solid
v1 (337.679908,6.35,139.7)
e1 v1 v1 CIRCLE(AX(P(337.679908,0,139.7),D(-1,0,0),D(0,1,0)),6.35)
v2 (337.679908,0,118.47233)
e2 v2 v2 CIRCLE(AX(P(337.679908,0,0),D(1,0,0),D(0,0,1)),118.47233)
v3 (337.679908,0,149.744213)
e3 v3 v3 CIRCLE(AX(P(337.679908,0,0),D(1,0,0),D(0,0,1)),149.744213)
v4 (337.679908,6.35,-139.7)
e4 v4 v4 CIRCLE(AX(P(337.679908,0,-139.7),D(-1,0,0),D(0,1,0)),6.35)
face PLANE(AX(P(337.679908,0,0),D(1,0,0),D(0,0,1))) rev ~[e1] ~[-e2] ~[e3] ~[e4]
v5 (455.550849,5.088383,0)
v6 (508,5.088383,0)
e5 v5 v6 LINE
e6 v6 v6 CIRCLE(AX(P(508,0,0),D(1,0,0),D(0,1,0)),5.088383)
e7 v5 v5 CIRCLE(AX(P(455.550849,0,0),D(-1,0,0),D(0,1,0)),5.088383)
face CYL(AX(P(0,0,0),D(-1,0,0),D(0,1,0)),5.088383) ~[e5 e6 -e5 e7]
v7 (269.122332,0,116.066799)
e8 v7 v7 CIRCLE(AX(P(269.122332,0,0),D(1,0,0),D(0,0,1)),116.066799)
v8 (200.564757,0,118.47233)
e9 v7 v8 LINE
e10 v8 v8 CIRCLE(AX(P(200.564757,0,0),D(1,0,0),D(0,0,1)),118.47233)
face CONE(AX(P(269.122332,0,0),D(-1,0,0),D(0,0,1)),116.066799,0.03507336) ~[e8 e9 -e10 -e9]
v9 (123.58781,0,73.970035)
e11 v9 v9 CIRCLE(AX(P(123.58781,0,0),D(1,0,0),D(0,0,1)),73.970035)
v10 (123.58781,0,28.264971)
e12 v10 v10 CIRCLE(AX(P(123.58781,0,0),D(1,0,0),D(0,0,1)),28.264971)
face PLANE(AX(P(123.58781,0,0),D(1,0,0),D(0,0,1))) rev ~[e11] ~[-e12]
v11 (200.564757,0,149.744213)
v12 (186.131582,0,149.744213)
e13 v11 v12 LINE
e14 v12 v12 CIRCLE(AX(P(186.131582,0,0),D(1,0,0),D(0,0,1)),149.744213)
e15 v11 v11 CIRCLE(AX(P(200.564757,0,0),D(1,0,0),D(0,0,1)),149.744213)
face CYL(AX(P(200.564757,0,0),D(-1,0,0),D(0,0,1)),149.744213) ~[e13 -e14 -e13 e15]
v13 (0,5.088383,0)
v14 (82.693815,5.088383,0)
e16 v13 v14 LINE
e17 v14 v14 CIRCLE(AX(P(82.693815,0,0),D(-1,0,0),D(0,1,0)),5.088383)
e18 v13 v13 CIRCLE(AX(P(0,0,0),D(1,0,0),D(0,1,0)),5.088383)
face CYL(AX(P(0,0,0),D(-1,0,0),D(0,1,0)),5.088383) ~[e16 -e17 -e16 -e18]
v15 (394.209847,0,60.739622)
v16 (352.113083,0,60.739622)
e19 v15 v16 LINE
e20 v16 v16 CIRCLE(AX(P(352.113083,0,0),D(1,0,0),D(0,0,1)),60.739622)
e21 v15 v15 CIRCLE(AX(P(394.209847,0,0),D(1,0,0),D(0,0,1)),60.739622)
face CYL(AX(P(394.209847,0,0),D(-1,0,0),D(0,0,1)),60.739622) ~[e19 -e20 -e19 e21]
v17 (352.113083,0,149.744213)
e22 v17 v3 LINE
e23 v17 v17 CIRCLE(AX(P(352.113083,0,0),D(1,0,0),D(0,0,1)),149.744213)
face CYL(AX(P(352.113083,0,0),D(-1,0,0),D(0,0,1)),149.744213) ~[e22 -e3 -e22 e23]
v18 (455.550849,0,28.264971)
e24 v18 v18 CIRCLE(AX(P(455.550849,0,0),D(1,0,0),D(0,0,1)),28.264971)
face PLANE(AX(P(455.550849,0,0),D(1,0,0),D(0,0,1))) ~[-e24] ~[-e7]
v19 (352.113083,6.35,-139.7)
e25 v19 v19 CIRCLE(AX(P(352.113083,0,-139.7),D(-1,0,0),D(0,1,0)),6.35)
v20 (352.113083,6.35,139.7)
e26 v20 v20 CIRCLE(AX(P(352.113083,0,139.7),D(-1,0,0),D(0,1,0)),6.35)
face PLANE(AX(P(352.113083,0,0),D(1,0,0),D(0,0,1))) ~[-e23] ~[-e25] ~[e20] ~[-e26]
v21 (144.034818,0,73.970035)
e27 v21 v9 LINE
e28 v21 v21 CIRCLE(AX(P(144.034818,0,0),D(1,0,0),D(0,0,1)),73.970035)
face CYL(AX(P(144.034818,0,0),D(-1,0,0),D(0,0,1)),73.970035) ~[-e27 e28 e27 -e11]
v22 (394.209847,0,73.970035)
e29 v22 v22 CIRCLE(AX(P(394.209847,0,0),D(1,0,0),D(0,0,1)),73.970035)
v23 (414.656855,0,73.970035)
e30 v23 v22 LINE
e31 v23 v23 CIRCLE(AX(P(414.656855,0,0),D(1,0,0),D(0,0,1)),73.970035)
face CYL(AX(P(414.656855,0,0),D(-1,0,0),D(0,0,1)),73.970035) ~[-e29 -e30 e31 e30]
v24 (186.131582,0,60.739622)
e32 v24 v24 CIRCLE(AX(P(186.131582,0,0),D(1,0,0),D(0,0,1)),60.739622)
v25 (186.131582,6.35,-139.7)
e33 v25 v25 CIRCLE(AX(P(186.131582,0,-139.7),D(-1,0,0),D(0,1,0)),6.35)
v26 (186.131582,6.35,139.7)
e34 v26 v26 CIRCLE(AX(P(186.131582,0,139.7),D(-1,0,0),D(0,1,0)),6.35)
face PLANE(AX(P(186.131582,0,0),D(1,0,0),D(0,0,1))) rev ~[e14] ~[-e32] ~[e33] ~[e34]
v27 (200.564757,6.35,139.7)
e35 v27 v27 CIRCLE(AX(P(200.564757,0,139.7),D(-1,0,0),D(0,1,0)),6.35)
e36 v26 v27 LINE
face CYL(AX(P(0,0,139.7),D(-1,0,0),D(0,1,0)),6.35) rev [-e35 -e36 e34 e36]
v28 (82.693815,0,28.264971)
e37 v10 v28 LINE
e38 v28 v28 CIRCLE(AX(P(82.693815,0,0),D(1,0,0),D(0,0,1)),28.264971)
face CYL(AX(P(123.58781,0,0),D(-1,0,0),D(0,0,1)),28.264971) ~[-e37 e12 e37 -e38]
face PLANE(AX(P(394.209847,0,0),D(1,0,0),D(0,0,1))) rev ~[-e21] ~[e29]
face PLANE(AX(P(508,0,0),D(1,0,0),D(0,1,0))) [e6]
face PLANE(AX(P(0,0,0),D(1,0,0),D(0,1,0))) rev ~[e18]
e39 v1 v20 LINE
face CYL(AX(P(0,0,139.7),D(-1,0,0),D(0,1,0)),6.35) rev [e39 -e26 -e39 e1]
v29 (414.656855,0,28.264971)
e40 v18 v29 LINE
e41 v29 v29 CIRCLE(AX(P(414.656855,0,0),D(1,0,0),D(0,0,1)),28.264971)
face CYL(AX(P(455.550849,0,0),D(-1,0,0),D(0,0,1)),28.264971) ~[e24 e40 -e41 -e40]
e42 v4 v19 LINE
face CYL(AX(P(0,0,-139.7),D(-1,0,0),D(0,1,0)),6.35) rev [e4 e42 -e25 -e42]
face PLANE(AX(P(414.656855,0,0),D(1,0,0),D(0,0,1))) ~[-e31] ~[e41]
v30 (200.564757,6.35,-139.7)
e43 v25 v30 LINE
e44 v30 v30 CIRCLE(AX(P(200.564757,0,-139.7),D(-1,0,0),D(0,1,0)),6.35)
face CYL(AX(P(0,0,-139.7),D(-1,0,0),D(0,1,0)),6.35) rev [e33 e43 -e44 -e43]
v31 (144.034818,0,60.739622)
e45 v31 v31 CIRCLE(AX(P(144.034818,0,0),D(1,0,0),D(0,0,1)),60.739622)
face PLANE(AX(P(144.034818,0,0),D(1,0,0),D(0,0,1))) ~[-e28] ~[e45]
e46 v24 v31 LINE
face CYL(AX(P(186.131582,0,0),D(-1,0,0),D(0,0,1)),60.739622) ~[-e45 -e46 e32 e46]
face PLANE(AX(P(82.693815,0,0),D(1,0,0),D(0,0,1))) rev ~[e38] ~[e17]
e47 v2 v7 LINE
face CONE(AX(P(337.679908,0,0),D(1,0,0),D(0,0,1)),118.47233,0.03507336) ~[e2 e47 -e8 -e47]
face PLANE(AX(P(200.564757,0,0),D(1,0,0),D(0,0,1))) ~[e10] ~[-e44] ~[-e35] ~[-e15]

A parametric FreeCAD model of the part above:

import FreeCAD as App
import Part
import Sketcher

V = App.Vector
Q = App.Units.Quantity

doc = App.newDocument("Part")
body = doc.addObject("PartDesign::Body", "Body")

sketch1 = body.newObject("Sketcher::SketchObject", "Sketch")
sketch1.AttachmentSupport = (doc.getObject("YZ_Plane"), [""])
sketch1.MapMode = "FlatFace"
sketch1.addGeometry(Part.Circle(V(0, 0, 0), V(0, 0, 1), 5.088383), False)
sketch1.addConstraint([
    Sketcher.Constraint("Coincident", 0, 3, -1, 1),
    Sketcher.Constraint("Diameter", 0, 10.176766),
])
pad1 = body.newObject("PartDesign::Pad", "Pad")
pad1.Profile = sketch1
pad1.Length = Q("20 in")

sketch2 = body.newObject("Sketcher::SketchObject", "Sketch001")
sketch2.AttachmentSupport = (doc.getObject("XZ_Plane"), [""])
sketch2.MapMode = "FlatFace"
sketch2.addGeometry([
    Part.LineSegment(V(82.693815, 28.264971, 0), V(82.693815, 0, 0)),
    Part.LineSegment(V(82.693815, 0, 0), V(455.550849, 0, 0)),
    Part.LineSegment(V(455.550849, 0, 0), V(455.550849, 28.264971, 0)),
    Part.LineSegment(V(455.550849, 28.264971, 0), V(414.656855, 28.264971, 0)),
    Part.LineSegment(V(414.656855, 28.264971, 0), V(414.656855, 73.970035, 0)),
    Part.LineSegment(V(414.656855, 73.970035, 0), V(394.209847, 73.970035, 0)),
    Part.LineSegment(V(394.209847, 73.970035, 0), V(394.209847, 60.739622, 0)),
    Part.LineSegment(V(394.209847, 60.739622, 0), V(352.113083, 60.739622, 0)),
    Part.LineSegment(V(352.113083, 60.739622, 0), V(352.113083, 149.744213, 0)),
    Part.LineSegment(V(352.113083, 149.744213, 0), V(337.679908, 149.744213, 0)),
    Part.LineSegment(V(337.679908, 149.744213, 0), V(337.679908, 118.47233, 0)),
    Part.LineSegment(V(337.679908, 118.47233, 0), V(269.122332, 116.066799, 0)),
    Part.LineSegment(V(269.122332, 116.066799, 0), V(200.564757, 118.47233, 0)),
    Part.LineSegment(V(200.564757, 118.47233, 0), V(200.564757, 149.744213, 0)),
    Part.LineSegment(V(200.564757, 149.744213, 0), V(186.131582, 149.744213, 0)),
    Part.LineSegment(V(186.131582, 149.744213, 0), V(186.131582, 60.739622, 0)),
    Part.LineSegment(V(186.131582, 60.739622, 0), V(144.034818, 60.739622, 0)),
    Part.LineSegment(V(144.034818, 60.739622, 0), V(144.034818, 73.970035, 0)),
    Part.LineSegment(V(144.034818, 73.970035, 0), V(123.58781, 73.970035, 0)),
    Part.LineSegment(V(123.58781, 73.970035, 0), V(123.58781, 28.264971, 0)),
    Part.LineSegment(V(123.58781, 28.264971, 0), V(82.693815, 28.264971, 0)),
], False)
sketch2.addConstraint([
    Sketcher.Constraint("Coincident", 0, 2, 1, 1),
    Sketcher.Constraint("Coincident", 1, 2, 2, 1),
    Sketcher.Constraint("Coincident", 2, 2, 3, 1),
    Sketcher.Constraint("Coincident", 3, 2, 4, 1),
    Sketcher.Constraint("Coincident", 4, 2, 5, 1),
    Sketcher.Constraint("Coincident", 5, 2, 6, 1),
    Sketcher.Constraint("Coincident", 6, 2, 7, 1),
    Sketcher.Constraint("Coincident", 7, 2, 8, 1),
    Sketcher.Constraint("Coincident", 8, 2, 9, 1),
    Sketcher.Constraint("Coincident", 9, 2, 10, 1),
    Sketcher.Constraint("Coincident", 10, 2, 11, 1),
    Sketcher.Constraint("Coincident", 11, 2, 12, 1),
    Sketcher.Constraint("Coincident", 12, 2, 13, 1),
    Sketcher.Constraint("Coincident", 13, 2, 14, 1),
    Sketcher.Constraint("Coincident", 14, 2, 15, 1),
    Sketcher.Constraint("Coincident", 15, 2, 16, 1),
    Sketcher.Constraint("Coincident", 16, 2, 17, 1),
    Sketcher.Constraint("Coincident", 17, 2, 18, 1),
    Sketcher.Constraint("Coincident", 18, 2, 19, 1),
    Sketcher.Constraint("Coincident", 19, 2, 20, 1),
    Sketcher.Constraint("Coincident", 20, 2, 0, 1),
    Sketcher.Constraint("Vertical", 0),
    Sketcher.Constraint("Horizontal", 1),
    Sketcher.Constraint("Vertical", 2),
    Sketcher.Constraint("Horizontal", 3),
    Sketcher.Constraint("Vertical", 4),
    Sketcher.Constraint("Horizontal", 5),
    Sketcher.Constraint("Vertical", 6),
    Sketcher.Constraint("Horizontal", 7),
    Sketcher.Constraint("Vertical", 8),
    Sketcher.Constraint("Horizontal", 9),
    Sketcher.Constraint("Vertical", 10),
    Sketcher.Constraint("Vertical", 13),
    Sketcher.Constraint("Horizontal", 14),
    Sketcher.Constraint("Vertical", 15),
    Sketcher.Constraint("Horizontal", 16),
    Sketcher.Constraint("Vertical", 17),
    Sketcher.Constraint("Horizontal", 18),
    Sketcher.Constraint("Vertical", 19),
    Sketcher.Constraint("Horizontal", 20),
    Sketcher.Constraint("PointOnObject", 0, 2, -1),
    Sketcher.Constraint("Horizontal", 10, 2, 12, 2),
    Sketcher.Constraint("Horizontal", 9, 2, 13, 2),
    Sketcher.Constraint("Horizontal", 7, 2, 15, 2),
    Sketcher.Constraint("Horizontal", 5, 2, 17, 2),
    Sketcher.Constraint("Horizontal", 3, 2, 19, 2),
    Sketcher.Constraint("Equal", 9, 14),
    Sketcher.Constraint("Equal", 7, 16),
    Sketcher.Constraint("Equal", 5, 18),
    Sketcher.Constraint("Equal", 3, 20),
    Sketcher.Constraint("Equal", 11, 12),
    Sketcher.Constraint("DistanceX", 20, 2, 20, 1, Q("1.6099998 in")),
    Sketcher.Constraint("DistanceX", 5, 2, 2, 2, Q("2.4150001 in")),
    Sketcher.Constraint("DistanceY", 0, 2, 0, 1, 28.264971),
    Sketcher.Constraint("DistanceY", 8, 1, 8, 2, 89.004591),
    Sketcher.Constraint("DistanceY", -1, 1, 11, 2, 116.066799),
    Sketcher.Constraint("DistanceX", 1, 1, 1, 2, 372.857034),
    Sketcher.Constraint("DistanceX", 7, 2, 7, 1, 42.096764),
    Sketcher.Constraint("DistanceX", 9, 2, 9, 1, 14.433175),
    Sketcher.Constraint("DistanceY", 4, 1, 4, 2, 45.705064),
    Sketcher.Constraint("DistanceY", 6, 2, 6, 1, 13.230413),
    Sketcher.Constraint("DistanceY", 10, 2, 10, 1, 31.271883),
    Sketcher.Constraint("DistanceX", -1, 1, 1, 2, 455.550849),
])
revolution = body.newObject("PartDesign::Revolution", "Revolution")
revolution.Profile = sketch2
revolution.ReferenceAxis = (sketch2, ["H_Axis"])
revolution.Angle = 360

sketch3 = body.newObject("Sketcher::SketchObject", "Sketch002")
sketch3.AttachmentSupport = (doc.getObject("YZ_Plane"), [""])
sketch3.MapMode = "FlatFace"
sketch3.addGeometry([
    Part.Circle(V(0, 139.7, 0), V(0, 0, 1), 6.35),
    Part.Circle(V(0, -139.7, 0), V(0, 0, 1), 6.35),
], False)
sketch3.addConstraint([
    Sketcher.Constraint("Equal", 0, 1),
    Sketcher.Constraint("Symmetric", 0, 3, 1, 3, -1, 1),
    Sketcher.Constraint("PointOnObject", 0, 3, -2),
    Sketcher.Constraint("Diameter", 0, Q("0.5 in")),
    Sketcher.Constraint("DistanceY", 1, 3, 0, 3, Q("11 in")),
])
pocket1 = body.newObject("PartDesign::Pocket", "Pocket")
pocket1.Profile = sketch3
pocket1.Type = "ThroughAll"
pocket1.Reversed = True

doc.recompute()
